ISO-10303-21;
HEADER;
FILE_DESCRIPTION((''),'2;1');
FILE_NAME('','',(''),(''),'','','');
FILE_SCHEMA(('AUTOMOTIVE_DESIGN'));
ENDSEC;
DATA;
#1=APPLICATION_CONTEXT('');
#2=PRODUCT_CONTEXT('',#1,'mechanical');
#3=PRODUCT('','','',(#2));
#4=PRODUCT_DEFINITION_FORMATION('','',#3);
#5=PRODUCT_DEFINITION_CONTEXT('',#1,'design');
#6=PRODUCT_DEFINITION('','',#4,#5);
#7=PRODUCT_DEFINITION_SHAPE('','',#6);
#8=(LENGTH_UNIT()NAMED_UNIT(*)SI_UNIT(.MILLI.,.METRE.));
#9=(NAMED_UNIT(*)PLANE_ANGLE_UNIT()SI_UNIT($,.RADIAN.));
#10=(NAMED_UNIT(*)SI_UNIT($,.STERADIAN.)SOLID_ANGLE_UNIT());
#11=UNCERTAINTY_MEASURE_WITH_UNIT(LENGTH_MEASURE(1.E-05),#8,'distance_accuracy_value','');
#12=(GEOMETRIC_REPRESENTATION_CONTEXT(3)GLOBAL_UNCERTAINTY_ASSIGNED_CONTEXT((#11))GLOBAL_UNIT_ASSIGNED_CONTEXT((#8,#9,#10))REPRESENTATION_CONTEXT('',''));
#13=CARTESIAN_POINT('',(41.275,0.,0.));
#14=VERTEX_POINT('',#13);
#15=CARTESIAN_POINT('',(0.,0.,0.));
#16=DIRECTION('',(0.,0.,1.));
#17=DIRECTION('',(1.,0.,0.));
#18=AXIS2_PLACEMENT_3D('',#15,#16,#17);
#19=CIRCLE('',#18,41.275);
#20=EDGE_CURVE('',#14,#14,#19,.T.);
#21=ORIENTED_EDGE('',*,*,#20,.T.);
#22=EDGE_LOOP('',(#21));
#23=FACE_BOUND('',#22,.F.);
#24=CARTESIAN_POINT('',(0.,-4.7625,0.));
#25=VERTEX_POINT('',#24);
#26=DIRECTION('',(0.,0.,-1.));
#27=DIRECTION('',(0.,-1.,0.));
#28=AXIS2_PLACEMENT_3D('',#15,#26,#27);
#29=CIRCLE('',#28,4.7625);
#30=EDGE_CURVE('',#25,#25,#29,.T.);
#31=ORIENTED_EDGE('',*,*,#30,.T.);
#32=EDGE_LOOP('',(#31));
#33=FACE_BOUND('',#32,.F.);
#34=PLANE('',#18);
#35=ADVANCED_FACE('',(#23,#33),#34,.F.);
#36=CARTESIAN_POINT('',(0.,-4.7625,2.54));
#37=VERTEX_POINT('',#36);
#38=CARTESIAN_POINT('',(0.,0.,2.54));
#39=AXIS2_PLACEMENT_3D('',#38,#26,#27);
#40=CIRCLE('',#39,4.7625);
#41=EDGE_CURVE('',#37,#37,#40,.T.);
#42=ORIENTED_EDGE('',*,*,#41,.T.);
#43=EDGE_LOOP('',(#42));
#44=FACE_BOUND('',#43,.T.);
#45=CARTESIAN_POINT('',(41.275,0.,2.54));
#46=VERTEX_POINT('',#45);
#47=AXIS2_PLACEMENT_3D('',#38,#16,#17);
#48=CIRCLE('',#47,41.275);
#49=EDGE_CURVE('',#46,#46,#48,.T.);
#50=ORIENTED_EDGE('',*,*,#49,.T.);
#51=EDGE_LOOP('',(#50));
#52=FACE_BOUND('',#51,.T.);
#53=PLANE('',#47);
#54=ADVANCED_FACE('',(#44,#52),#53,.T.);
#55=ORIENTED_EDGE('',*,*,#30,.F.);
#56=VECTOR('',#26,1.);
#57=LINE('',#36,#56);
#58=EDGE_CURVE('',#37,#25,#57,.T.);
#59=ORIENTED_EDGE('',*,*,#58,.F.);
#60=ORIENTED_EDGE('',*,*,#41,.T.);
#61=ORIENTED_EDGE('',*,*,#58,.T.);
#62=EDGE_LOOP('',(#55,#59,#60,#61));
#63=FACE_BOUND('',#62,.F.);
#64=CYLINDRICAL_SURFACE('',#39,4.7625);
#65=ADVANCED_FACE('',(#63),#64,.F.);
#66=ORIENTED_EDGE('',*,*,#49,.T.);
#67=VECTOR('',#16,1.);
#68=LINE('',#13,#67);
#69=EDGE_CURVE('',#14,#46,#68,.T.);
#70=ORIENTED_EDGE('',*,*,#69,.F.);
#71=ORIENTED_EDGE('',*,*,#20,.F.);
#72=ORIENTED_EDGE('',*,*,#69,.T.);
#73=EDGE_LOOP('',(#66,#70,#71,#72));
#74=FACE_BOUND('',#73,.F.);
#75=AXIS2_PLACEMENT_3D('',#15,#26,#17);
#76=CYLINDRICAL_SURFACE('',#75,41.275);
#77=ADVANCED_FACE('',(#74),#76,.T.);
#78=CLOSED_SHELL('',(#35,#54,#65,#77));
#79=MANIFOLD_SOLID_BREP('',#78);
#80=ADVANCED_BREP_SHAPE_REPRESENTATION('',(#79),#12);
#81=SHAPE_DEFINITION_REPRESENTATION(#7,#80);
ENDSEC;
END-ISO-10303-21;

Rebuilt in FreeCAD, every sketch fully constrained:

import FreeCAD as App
import Part
import Sketcher

V = App.Vector
Q = App.Units.Quantity

doc = App.newDocument("Part")
body = doc.addObject("PartDesign::Body", "Body")

sketch1 = body.newObject("Sketcher::SketchObject", "Sketch")
sketch1.AttachmentSupport = (doc.getObject("XY_Plane"), [""])
sketch1.MapMode = "FlatFace"
sketch1.addGeometry(Part.Circle(V(0, 0, 0), V(0, 0, 1), 41), False)
sketch1.addConstraint([
    Sketcher.Constraint("Coincident", 0, 3, -1, 1),
    Sketcher.Constraint("Diameter", 0, Q("3.25 in")),
])
pad1 = body.newObject("PartDesign::Pad", "Pad")
pad1.Profile = sketch1
pad1.Length = Q("0.1 in")

sketch2 = body.newObject("Sketcher::SketchObject", "Sketch001")
sketch2.AttachmentSupport = (doc.getObject("XY_Plane"), [""])
sketch2.MapMode = "FlatFace"
sketch2.AttachmentOffset = App.Placement(V(0, 0, 0.1 * 25.4), App.Rotation())
sketch2.addGeometry(Part.Circle(V(0, 0, 0), V(0, 0, 1), 4.8), False)
sketch2.addConstraint([
    Sketcher.Constraint("Coincident", 0, 3, -1, 1),
    Sketcher.Constraint("Diameter", 0, Q("0.375 in")),
])
doc.recompute()
hole = body.newObject("PartDesign::Hole", "Hole")
hole.Profile = sketch2
hole.ThreadType = "None"
hole.Diameter = Q("0.375 in")
hole.DepthType = "ThroughAll"

doc.recompute()
